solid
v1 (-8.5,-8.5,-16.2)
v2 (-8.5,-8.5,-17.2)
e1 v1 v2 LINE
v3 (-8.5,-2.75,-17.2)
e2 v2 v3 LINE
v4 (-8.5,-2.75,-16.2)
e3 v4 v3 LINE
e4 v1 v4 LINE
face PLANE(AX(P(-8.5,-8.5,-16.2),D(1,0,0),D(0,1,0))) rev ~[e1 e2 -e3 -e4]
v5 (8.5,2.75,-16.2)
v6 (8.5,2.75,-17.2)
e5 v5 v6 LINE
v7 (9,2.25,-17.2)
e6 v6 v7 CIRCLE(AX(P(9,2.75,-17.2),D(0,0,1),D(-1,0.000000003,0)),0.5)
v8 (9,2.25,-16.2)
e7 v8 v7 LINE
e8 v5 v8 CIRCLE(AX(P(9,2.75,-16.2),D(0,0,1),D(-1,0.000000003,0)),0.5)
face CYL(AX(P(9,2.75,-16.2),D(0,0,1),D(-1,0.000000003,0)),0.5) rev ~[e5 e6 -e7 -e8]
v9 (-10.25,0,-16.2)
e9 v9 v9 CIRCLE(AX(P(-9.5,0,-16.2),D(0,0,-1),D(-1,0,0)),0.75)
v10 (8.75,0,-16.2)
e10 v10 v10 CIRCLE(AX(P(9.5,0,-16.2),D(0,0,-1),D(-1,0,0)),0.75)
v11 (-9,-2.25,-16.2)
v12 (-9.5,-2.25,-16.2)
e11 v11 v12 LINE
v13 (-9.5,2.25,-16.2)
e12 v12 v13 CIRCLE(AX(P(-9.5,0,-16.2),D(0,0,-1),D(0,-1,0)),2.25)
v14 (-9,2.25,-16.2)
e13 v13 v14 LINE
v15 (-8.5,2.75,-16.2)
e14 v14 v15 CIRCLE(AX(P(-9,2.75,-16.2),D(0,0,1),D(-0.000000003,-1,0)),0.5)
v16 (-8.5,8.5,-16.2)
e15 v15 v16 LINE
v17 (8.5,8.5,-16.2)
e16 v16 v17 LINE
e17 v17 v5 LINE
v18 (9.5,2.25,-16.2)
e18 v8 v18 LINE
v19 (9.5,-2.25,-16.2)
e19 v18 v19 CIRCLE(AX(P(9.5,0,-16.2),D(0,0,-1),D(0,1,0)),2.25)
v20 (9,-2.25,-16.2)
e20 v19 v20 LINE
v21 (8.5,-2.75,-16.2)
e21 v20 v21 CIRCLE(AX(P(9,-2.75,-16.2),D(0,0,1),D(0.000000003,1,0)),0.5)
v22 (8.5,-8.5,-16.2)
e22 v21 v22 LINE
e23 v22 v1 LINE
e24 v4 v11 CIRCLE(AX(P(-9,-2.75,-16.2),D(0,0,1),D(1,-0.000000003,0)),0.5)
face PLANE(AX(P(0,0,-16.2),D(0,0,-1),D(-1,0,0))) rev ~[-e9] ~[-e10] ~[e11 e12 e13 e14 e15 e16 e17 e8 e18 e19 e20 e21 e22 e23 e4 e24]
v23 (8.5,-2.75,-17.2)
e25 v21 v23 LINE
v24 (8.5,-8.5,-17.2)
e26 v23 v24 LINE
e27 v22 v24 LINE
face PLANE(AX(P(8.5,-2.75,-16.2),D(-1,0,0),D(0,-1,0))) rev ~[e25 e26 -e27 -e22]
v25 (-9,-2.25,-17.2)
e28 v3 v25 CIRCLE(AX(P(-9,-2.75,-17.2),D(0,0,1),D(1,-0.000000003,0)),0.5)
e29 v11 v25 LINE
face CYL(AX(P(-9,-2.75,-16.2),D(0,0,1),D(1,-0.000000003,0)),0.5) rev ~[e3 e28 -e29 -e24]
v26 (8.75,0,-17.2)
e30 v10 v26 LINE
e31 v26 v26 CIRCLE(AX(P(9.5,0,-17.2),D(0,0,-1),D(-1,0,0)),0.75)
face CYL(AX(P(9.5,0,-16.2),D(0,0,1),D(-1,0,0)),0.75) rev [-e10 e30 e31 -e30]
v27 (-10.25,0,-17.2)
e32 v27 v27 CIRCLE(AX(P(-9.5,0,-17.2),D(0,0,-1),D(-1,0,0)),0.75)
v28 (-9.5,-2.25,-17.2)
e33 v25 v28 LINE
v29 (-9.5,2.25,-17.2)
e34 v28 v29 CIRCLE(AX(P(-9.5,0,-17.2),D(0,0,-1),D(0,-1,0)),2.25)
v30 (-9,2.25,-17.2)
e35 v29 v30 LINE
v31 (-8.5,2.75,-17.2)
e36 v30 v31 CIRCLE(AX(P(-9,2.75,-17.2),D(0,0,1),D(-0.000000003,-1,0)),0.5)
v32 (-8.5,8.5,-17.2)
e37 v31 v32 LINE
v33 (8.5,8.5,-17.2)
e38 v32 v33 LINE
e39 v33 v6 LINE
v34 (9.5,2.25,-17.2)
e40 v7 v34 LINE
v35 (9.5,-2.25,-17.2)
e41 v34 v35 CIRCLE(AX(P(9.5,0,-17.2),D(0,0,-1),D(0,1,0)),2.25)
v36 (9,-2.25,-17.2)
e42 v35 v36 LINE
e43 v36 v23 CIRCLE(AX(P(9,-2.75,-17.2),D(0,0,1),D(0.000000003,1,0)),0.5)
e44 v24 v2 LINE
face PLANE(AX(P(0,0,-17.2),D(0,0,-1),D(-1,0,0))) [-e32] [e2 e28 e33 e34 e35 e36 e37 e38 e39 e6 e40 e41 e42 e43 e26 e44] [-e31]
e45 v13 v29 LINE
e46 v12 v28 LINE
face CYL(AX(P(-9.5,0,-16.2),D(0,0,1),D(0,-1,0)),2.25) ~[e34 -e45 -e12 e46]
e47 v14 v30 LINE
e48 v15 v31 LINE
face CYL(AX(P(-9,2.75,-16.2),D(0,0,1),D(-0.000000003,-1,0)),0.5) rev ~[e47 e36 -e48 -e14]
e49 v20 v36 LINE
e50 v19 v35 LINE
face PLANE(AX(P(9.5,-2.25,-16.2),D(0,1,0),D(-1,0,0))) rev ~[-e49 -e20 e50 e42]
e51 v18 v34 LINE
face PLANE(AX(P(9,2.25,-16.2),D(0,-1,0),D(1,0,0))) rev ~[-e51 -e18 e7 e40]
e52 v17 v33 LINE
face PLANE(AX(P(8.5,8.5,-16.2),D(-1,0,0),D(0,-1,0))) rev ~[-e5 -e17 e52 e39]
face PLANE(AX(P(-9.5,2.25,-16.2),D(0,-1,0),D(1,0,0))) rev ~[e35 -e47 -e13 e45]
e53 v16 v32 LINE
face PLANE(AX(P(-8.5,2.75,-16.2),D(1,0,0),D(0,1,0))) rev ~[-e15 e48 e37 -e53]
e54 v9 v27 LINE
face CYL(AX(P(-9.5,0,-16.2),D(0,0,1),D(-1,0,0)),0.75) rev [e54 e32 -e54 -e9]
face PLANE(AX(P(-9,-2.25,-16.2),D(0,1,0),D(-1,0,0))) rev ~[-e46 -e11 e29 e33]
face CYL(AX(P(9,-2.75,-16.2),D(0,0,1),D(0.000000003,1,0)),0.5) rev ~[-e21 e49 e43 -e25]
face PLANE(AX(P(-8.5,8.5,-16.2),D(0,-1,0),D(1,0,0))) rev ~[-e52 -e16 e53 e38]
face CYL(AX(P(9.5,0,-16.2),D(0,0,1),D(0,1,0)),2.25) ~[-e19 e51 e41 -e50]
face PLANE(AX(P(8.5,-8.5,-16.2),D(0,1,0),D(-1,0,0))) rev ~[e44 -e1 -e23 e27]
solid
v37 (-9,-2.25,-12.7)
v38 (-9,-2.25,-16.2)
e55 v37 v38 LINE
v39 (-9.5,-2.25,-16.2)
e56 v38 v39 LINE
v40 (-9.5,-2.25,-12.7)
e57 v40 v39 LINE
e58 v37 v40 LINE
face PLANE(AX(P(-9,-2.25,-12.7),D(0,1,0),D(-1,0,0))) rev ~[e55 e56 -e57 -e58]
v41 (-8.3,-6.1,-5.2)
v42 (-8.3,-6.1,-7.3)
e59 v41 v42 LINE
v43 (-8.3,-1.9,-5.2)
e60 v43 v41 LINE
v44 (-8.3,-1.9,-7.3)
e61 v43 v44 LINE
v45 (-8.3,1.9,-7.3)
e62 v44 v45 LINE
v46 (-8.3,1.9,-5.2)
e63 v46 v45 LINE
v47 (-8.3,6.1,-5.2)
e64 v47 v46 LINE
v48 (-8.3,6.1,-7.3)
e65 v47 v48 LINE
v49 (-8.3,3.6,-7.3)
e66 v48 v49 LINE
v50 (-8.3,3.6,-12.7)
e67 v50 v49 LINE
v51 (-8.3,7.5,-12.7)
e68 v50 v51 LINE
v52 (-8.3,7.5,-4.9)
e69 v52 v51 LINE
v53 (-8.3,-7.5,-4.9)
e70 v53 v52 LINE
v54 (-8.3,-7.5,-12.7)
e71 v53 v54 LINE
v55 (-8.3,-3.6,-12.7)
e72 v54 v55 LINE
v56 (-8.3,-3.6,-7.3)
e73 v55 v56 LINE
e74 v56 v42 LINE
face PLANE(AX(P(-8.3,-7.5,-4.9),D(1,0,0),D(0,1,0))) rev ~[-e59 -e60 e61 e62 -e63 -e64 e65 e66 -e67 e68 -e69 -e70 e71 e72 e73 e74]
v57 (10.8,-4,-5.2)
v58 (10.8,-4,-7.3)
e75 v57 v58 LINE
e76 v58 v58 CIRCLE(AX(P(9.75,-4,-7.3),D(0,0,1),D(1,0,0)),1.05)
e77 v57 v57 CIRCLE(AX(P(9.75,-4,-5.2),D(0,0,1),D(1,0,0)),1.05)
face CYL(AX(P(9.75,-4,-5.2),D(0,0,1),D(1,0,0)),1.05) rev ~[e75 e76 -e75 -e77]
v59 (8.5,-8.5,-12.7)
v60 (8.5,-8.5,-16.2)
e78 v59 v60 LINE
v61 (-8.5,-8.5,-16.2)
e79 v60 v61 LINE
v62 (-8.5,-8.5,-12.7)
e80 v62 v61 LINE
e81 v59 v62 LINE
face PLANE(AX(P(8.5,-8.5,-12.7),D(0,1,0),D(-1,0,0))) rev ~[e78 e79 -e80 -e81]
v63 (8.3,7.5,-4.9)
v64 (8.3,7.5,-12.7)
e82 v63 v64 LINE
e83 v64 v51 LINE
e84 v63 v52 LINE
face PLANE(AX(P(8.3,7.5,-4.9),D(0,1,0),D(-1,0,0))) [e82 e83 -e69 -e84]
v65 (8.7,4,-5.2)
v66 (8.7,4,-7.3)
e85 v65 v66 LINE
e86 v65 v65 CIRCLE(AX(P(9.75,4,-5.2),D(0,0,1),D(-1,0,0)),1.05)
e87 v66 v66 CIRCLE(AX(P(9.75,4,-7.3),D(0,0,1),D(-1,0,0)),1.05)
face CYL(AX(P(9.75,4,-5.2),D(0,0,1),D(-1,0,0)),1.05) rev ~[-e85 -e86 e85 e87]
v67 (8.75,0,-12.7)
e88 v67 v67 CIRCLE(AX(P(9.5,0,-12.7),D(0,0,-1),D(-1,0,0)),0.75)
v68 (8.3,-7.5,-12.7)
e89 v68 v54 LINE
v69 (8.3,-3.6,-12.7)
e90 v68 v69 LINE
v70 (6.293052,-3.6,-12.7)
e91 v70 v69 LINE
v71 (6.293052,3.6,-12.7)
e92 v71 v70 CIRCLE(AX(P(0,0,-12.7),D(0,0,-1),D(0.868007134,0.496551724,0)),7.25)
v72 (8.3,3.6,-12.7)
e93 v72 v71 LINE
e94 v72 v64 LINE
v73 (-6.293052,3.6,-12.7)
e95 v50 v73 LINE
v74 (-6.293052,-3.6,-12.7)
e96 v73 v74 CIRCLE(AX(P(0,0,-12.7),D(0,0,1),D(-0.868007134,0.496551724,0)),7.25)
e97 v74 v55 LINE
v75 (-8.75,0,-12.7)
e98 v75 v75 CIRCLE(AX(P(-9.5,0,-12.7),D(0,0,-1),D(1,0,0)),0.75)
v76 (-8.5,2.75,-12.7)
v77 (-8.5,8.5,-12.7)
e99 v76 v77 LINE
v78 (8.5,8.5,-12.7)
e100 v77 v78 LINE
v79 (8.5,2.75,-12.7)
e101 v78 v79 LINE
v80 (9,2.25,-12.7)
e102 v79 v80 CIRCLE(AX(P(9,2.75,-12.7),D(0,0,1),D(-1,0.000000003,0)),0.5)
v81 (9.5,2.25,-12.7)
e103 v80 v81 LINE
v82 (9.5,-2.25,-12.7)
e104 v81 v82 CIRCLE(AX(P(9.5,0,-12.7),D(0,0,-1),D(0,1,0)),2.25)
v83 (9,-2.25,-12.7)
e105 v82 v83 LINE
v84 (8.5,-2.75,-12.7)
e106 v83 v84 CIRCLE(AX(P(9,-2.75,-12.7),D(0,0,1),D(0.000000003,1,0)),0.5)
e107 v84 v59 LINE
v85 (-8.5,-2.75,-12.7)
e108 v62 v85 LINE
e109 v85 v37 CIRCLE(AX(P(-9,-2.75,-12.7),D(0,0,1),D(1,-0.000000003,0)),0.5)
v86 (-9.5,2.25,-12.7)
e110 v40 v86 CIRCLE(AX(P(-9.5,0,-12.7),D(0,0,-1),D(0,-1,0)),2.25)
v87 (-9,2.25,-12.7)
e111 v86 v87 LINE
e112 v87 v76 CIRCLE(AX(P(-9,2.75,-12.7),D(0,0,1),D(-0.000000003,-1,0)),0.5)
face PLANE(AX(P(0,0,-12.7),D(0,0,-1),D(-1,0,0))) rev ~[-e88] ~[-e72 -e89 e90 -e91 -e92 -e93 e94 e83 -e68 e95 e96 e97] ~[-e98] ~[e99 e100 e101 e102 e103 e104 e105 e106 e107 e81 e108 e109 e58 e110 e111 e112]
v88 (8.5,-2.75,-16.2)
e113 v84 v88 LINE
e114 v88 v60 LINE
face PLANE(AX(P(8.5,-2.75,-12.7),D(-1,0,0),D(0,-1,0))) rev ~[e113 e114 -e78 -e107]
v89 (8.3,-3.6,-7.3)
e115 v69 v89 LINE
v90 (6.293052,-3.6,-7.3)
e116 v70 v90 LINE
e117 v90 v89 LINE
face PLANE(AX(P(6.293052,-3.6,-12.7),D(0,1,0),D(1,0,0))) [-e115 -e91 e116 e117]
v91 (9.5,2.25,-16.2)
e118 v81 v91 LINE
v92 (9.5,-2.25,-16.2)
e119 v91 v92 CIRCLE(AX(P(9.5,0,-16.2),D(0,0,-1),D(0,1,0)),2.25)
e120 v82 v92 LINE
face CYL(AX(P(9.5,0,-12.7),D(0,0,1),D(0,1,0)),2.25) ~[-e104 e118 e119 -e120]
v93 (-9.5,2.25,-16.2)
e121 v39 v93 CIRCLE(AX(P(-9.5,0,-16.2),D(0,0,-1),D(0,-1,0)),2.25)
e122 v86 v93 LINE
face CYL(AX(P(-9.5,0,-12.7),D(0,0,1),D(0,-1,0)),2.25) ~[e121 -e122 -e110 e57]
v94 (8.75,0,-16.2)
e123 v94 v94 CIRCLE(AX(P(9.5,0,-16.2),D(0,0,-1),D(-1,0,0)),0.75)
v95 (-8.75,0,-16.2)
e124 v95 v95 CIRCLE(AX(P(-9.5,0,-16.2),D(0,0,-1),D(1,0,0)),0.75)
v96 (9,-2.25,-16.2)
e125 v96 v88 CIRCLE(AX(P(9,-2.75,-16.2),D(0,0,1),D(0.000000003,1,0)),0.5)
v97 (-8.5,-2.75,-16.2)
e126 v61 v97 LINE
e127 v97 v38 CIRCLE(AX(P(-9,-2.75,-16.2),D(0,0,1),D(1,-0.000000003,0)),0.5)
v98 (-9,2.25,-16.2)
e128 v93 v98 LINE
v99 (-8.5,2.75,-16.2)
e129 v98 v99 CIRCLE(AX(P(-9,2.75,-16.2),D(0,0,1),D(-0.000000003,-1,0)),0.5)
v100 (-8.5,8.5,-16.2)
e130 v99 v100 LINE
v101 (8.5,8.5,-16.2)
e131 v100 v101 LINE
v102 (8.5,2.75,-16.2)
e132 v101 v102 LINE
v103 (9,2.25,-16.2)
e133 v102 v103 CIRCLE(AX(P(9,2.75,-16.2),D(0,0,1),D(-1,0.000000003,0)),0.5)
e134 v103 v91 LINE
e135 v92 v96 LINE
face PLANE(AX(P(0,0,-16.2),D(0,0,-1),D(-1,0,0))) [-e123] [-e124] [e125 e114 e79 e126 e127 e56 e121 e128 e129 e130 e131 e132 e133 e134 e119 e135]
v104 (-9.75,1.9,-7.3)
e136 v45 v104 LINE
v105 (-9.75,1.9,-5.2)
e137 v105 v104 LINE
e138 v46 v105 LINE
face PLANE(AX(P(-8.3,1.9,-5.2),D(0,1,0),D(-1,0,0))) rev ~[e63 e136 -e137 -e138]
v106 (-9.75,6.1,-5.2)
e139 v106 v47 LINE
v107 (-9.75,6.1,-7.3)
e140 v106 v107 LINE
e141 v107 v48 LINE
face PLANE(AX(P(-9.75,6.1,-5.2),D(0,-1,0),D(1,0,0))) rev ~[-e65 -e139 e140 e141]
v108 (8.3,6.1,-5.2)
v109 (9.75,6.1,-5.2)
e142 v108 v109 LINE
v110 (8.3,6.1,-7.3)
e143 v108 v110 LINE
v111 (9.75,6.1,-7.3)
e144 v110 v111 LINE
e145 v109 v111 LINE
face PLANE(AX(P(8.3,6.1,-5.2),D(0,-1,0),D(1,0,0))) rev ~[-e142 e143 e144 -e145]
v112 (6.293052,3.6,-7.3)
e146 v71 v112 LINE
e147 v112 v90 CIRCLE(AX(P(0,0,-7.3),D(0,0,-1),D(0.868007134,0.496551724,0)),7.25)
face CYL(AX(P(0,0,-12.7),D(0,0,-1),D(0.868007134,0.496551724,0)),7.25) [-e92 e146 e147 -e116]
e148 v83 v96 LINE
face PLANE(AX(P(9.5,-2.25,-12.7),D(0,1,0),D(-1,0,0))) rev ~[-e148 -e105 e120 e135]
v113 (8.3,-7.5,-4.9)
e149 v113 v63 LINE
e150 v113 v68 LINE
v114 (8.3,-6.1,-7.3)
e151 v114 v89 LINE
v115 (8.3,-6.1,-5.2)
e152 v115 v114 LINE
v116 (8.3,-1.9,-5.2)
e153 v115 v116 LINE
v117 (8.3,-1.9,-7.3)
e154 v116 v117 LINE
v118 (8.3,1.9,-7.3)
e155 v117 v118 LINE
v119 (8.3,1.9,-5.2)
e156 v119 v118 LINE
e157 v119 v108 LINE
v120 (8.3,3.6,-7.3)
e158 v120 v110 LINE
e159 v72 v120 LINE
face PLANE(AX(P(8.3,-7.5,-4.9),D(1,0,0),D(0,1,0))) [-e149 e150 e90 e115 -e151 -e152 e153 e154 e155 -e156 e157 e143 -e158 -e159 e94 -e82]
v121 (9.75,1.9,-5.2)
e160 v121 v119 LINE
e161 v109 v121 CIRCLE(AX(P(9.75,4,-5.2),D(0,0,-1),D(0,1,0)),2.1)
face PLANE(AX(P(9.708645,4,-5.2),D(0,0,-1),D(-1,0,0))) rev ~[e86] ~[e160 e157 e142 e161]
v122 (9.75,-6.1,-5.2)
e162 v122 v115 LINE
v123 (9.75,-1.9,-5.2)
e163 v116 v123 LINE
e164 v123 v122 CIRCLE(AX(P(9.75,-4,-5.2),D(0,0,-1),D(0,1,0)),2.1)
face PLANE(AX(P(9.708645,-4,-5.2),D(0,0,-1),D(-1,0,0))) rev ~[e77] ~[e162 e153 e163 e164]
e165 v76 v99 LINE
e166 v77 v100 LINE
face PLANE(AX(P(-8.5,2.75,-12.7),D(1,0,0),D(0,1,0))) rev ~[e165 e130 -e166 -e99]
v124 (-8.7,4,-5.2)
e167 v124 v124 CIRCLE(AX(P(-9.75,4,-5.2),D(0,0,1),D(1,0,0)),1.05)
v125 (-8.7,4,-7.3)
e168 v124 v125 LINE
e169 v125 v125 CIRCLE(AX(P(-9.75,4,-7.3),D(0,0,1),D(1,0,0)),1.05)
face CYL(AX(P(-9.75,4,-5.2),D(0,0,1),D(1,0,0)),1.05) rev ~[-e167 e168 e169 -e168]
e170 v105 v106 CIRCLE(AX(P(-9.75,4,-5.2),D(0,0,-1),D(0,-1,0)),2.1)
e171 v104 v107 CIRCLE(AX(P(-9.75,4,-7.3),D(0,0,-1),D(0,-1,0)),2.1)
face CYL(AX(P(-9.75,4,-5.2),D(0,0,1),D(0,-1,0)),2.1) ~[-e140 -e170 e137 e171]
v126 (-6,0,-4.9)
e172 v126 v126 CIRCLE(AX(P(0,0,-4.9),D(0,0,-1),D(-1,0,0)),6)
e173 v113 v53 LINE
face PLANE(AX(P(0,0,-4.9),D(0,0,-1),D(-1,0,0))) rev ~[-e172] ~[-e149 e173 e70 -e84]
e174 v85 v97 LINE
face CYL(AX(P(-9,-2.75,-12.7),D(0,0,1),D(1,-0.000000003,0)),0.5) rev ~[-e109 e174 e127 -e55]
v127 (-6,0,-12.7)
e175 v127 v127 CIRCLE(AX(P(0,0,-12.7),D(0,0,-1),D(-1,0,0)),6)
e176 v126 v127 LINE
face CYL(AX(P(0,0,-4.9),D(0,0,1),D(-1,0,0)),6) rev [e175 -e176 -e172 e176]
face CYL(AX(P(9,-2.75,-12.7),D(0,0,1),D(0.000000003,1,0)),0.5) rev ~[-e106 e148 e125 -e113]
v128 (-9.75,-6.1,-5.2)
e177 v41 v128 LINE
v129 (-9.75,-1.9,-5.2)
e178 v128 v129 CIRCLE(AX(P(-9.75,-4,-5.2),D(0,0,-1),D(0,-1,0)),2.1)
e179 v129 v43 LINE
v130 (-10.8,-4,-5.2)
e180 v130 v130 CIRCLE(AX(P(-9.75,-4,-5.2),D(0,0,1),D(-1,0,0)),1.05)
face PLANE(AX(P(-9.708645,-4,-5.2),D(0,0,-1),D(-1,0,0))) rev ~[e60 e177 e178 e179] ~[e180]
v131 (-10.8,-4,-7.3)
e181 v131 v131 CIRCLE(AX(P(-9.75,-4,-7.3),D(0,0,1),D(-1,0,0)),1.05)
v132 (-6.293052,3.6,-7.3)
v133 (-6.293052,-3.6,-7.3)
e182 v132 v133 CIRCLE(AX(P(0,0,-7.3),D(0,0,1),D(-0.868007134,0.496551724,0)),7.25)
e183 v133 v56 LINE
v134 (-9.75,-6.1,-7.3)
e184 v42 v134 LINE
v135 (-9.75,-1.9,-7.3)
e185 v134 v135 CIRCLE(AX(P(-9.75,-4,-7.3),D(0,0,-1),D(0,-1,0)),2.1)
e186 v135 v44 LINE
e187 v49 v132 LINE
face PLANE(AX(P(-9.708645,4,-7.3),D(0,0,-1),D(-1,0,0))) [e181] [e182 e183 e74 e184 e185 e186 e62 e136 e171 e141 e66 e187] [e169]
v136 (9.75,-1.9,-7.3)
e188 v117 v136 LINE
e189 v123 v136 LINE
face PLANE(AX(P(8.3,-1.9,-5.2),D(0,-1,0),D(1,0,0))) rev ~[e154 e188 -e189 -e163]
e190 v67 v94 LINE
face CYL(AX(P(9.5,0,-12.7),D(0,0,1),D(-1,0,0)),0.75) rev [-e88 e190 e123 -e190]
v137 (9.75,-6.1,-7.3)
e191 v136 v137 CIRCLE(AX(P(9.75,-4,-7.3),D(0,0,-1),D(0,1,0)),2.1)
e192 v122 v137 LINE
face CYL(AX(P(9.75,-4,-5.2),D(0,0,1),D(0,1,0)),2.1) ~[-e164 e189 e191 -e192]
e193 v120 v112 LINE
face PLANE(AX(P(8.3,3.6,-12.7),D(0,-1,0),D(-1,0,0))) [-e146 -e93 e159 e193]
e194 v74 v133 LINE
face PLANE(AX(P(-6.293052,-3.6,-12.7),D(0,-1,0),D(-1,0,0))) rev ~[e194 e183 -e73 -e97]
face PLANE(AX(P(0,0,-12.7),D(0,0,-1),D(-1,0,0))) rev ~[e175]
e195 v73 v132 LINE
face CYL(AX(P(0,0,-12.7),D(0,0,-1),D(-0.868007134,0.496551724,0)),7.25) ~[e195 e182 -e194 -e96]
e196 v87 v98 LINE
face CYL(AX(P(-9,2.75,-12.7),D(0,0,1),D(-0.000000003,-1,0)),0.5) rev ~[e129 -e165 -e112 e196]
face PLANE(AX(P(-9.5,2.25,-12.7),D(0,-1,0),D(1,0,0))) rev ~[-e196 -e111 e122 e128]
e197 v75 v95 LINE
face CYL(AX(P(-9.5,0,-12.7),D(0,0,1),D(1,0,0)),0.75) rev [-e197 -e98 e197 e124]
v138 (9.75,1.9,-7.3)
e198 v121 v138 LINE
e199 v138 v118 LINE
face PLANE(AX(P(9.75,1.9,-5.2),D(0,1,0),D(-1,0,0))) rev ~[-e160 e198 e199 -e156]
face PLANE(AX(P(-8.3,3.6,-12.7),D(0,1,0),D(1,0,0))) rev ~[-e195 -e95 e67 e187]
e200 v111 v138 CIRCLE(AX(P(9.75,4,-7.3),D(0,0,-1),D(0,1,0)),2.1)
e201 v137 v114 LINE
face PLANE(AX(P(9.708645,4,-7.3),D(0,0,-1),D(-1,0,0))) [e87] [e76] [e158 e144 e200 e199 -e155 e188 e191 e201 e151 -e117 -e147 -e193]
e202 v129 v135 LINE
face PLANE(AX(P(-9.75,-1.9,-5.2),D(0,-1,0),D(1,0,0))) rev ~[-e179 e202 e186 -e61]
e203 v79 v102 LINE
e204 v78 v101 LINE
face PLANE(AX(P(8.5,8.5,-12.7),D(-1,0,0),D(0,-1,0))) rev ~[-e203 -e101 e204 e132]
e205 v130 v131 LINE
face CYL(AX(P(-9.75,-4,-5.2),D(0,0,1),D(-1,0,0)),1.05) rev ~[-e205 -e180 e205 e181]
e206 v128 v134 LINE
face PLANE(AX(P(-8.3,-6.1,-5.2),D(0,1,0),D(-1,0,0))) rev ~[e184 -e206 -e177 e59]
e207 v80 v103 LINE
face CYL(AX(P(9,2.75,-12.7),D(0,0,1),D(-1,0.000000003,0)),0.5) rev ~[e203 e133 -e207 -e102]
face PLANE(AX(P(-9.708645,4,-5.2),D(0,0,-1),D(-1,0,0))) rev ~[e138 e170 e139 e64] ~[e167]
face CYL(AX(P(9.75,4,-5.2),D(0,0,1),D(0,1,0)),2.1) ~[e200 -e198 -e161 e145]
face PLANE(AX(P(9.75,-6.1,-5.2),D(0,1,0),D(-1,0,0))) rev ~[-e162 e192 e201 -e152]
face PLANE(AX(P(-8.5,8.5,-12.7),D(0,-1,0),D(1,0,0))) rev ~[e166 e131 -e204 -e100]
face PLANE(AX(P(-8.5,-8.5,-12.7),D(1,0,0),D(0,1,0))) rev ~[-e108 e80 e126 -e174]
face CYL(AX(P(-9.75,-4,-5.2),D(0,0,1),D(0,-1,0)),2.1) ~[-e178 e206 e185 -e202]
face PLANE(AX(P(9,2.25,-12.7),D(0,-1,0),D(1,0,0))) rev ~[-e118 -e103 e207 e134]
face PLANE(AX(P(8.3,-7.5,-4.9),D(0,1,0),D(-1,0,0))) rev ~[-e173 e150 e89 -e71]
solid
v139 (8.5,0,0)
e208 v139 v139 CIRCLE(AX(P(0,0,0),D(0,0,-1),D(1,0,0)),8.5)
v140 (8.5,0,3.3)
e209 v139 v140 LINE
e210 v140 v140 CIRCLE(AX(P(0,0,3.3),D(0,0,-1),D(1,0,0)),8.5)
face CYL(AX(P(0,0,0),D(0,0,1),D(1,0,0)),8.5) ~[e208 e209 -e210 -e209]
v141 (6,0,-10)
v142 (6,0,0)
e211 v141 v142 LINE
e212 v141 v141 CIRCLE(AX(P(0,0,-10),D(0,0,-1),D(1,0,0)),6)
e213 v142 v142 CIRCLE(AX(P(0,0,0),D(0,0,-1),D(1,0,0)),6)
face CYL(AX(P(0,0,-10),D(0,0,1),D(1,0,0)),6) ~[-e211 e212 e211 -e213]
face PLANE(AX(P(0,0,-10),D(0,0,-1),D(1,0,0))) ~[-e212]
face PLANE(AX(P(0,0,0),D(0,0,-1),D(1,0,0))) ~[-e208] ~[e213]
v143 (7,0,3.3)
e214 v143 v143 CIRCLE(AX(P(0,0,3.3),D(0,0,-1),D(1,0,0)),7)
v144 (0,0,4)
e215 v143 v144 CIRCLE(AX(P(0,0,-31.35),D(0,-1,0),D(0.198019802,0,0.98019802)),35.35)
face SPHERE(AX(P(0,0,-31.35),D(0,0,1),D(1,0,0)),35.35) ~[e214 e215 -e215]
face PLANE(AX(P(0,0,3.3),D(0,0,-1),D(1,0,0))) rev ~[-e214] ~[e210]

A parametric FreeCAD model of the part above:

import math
import FreeCAD as App
import Part
import Sketcher

doc = App.newDocument("Part")
body = doc.addObject("PartDesign::Body", "Body")

# Sketch on YZ plane
sketch1 = doc.addObject("Sketcher::SketchObject", "Sketch")
body.addObject(sketch1)
sketch1.AttachmentSupport = (doc.YZ_Plane, [""])
sketch1.MapMode = "FlatFace"
sketch1.addGeometry(Part.LineSegment(App.Vector(6, -10, 0), App.Vector(6, 0, 0)), False)
sketch1.addGeometry(Part.LineSegment(App.Vector(6, 0, 0), App.Vector(8.5, 0, 0)), False)
sketch1.addGeometry(Part.LineSegment(App.Vector(8.5, 0, 0), App.Vector(8.5, 3.3, 0)), False)
sketch1.addGeometry(Part.LineSegment(App.Vector(8.5, 3.3, 0), App.Vector(7, 3.3, 0)), False)
sketch1.addGeometry(Part.ArcOfCircle(Part.Circle(App.Vector(0, -31.3, 0), App.Vector(0, 0, 1), 35.3), math.radians(78.58), math.radians(90)), False)
sketch1.addGeometry(Part.LineSegment(App.Vector(0, 4, 0), App.Vector(0, -10, 0)), False)
sketch1.addGeometry(Part.LineSegment(App.Vector(0, -10, 0), App.Vector(6, -10, 0)), False)
sketch1.addConstraint(Sketcher.Constraint("Coincident", 0, 2, 1, 1))
sketch1.addConstraint(Sketcher.Constraint("Coincident", 1, 2, 2, 1))
sketch1.addConstraint(Sketcher.Constraint("Coincident", 2, 2, 3, 1))
sketch1.addConstraint(Sketcher.Constraint("Coincident", 3, 2, 4, 1))
sketch1.addConstraint(Sketcher.Constraint("Coincident", 4, 2, 5, 1))
sketch1.addConstraint(Sketcher.Constraint("Coincident", 5, 2, 6, 1))
sketch1.addConstraint(Sketcher.Constraint("Coincident", 6, 2, 0, 1))
sketch1.addConstraint(Sketcher.Constraint("Vertical", 0))
sketch1.addConstraint(Sketcher.Constraint("Horizontal", 1))
sketch1.addConstraint(Sketcher.Constraint("Vertical", 2))
sketch1.addConstraint(Sketcher.Constraint("Horizontal", 3))
sketch1.addConstraint(Sketcher.Constraint("Vertical", 5))
sketch1.addConstraint(Sketcher.Constraint("Horizontal", 6))
sketch1.addConstraint(Sketcher.Constraint("PointOnObject", 4, 3, -2))
sketch1.addConstraint(Sketcher.Constraint("PointOnObject", 0, 2, -1))
sketch1.addConstraint(Sketcher.Constraint("PointOnObject", 4, 2, -2))
sketch1.addConstraint(Sketcher.Constraint("DistanceX", 6, 1, 6, 2, 6.0))
sketch1.addConstraint(Sketcher.Constraint("DistanceY", 0, 1, 0, 2, 10.0))
sketch1.addConstraint(Sketcher.Constraint("DistanceY", 5, 2, 5, 1, 14.0))
sketch1.addConstraint(Sketcher.Constraint("Radius", 4, 35.35))
sketch1.addConstraint(Sketcher.Constraint("DistanceX", 1, 1, 1, 2, 2.5))
sketch1.addConstraint(Sketcher.Constraint("DistanceX", 3, 2, 3, 1, 1.5))
revolution = doc.addObject("PartDesign::Revolution", "Revolution")
body.addObject(revolution)
revolution.Profile = sketch1
revolution.ReferenceAxis = (sketch1, ["V_Axis"])
revolution.Angle = 360
body2 = doc.addObject("PartDesign::Body", "Body001")

# Sketch on XY plane
sketch2 = doc.addObject("Sketcher::SketchObject", "Sketch001")
body2.addObject(sketch2)
sketch2.AttachmentSupport = (doc.getObject("XY_Plane001"), [""])
sketch2.MapMode = "FlatFace"
sketch2.AttachmentOffset = App.Placement(App.Vector(0, 0, -4.9), App.Rotation())
sketch2.addGeometry(Part.LineSegment(App.Vector(8, 8, 0), App.Vector(8, -8, 0)), False)
sketch2.addGeometry(Part.LineSegment(App.Vector(8, -8, 0), App.Vector(-8, -8, 0)), False)
sketch2.addGeometry(Part.LineSegment(App.Vector(-8, -8, 0), App.Vector(-8, 8, 0)), False)
sketch2.addGeometry(Part.LineSegment(App.Vector(-8, 8, 0), App.Vector(8, 8, 0)), False)
sketch2.addGeometry(Part.Circle(App.Vector(0, 0, 0), App.Vector(0, 0, 1), 6), False)
sketch2.addConstraint(Sketcher.Constraint("Coincident", 0, 2, 1, 1))
sketch2.addConstraint(Sketcher.Constraint("Coincident", 1, 2, 2, 1))
sketch2.addConstraint(Sketcher.Constraint("Coincident", 2, 2, 3, 1))
sketch2.addConstraint(Sketcher.Constraint("Coincident", 3, 2, 0, 1))
sketch2.addConstraint(Sketcher.Constraint("Vertical", 0))
sketch2.addConstraint(Sketcher.Constraint("Horizontal", 1))
sketch2.addConstraint(Sketcher.Constraint("Vertical", 2))
sketch2.addConstraint(Sketcher.Constraint("Horizontal", 3))
sketch2.addConstraint(Sketcher.Constraint("Coincident", 4, 3, -1, 1))
sketch2.addConstraint(Sketcher.Constraint("Symmetric", 0, 2, 2, 2, -1, 1))
sketch2.addConstraint(Sketcher.Constraint("Diameter", 4, 12.0))
sketch2.addConstraint(Sketcher.Constraint("DistanceY", 0, 2, 0, 1, 15.0))
sketch2.addConstraint(Sketcher.Constraint("DistanceX", 1, 2, 1, 1, 16.6))
pad1 = doc.addObject("PartDesign::Pad", "Pad")
body2.addObject(pad1)
pad1.Profile = sketch2
pad1.Length = 7.8
pad1.Reversed = True

# Sketch on XY plane
sketch3 = doc.addObject("Sketcher::SketchObject", "Sketch002")
body2.addObject(sketch3)
sketch3.AttachmentSupport = (doc.getObject("XY_Plane001"), [""])
sketch3.MapMode = "FlatFace"
sketch3.AttachmentOffset = App.Placement(App.Vector(0, 0, -5.2), App.Rotation())
sketch3.addGeometry(Part.LineSegment(App.Vector(-8.3, 6.1, 0), App.Vector(-9.8, 6.1, 0)), False)
sketch3.addGeometry(Part.ArcOfCircle(Part.Circle(App.Vector(-9.8, 4, 0), App.Vector(0, 0, 1), 2.1), math.radians(90), math.radians(270)), False)
sketch3.addGeometry(Part.LineSegment(App.Vector(-9.8, 1.9, 0), App.Vector(-8.3, 1.9, 0)), False)
sketch3.addGeometry(Part.LineSegment(App.Vector(-8.3, 1.9, 0), App.Vector(-8.3, 6.1, 0)), False)
sketch3.addGeometry(Part.Circle(App.Vector(-9.8, 4, 0), App.Vector(0, 0, 1), 1.1), False)
sketch3.addGeometry(Part.LineSegment(App.Vector(8.3, 1.9, 0), App.Vector(9.8, 1.9, 0)), False)
sketch3.addGeometry(Part.ArcOfCircle(Part.Circle(App.Vector(9.8, 4, 0), App.Vector(0, 0, 1), 2.1), math.radians(-90), math.radians(90)), False)
sketch3.addGeometry(Part.LineSegment(App.Vector(9.8, 6.1, 0), App.Vector(8.3, 6.1, 0)), False)
sketch3.addGeometry(Part.LineSegment(App.Vector(8.3, 6.1, 0), App.Vector(8.3, 1.9, 0)), False)
sketch3.addGeometry(Part.Circle(App.Vector(9.8, 4, 0), App.Vector(0, 0, 1), 1.1), False)
sketch3.addGeometry(Part.LineSegment(App.Vector(8.3, -6.1, 0), App.Vector(9.8, -6.1, 0)), False)
sketch3.addGeometry(Part.ArcOfCircle(Part.Circle(App.Vector(9.8, -4, 0), App.Vector(0, 0, 1), 2.1), math.radians(-90), math.radians(90)), False)
sketch3.addGeometry(Part.LineSegment(App.Vector(9.8, -1.9, 0), App.Vector(8.3, -1.9, 0)), False)
sketch3.addGeometry(Part.LineSegment(App.Vector(8.3, -1.9, 0), App.Vector(8.3, -6.1, 0)), False)
sketch3.addGeometry(Part.Circle(App.Vector(9.8, -4, 0), App.Vector(0, 0, 1), 1.1), False)
sketch3.addGeometry(Part.LineSegment(App.Vector(-8.3, -1.9, 0), App.Vector(-9.8, -1.9, 0)), False)
sketch3.addGeometry(Part.ArcOfCircle(Part.Circle(App.Vector(-9.8, -4, 0), App.Vector(0, 0, 1), 2.1), math.radians(90), math.radians(270)), False)
sketch3.addGeometry(Part.LineSegment(App.Vector(-9.8, -6.1, 0), App.Vector(-8.3, -6.1, 0)), False)
sketch3.addGeometry(Part.LineSegment(App.Vector(-8.3, -6.1, 0), App.Vector(-8.3, -1.9, 0)), False)
sketch3.addGeometry(Part.Circle(App.Vector(-9.8, -4, 0), App.Vector(0, 0, 1), 1.1), False)
sketch3.addConstraint(Sketcher.Constraint("Tangent", 0, 2, 1, 1))
sketch3.addConstraint(Sketcher.Constraint("Tangent", 1, 2, 2, 1))
sketch3.addConstraint(Sketcher.Constraint("Coincident", 2, 2, 3, 1))
sketch3.addConstraint(Sketcher.Constraint("Coincident", 3, 2, 0, 1))
sketch3.addConstraint(Sketcher.Constraint("Tangent", 5, 2, 6, 1))
sketch3.addConstraint(Sketcher.Constraint("Tangent", 6, 2, 7, 1))
sketch3.addConstraint(Sketcher.Constraint("Coincident", 7, 2, 8, 1))
sketch3.addConstraint(Sketcher.Constraint("Coincident", 8, 2, 5, 1))
sketch3.addConstraint(Sketcher.Constraint("Tangent", 10, 2, 11, 1))
sketch3.addConstraint(Sketcher.Constraint("Tangent", 11, 2, 12, 1))
sketch3.addConstraint(Sketcher.Constraint("Coincident", 12, 2, 13, 1))
sketch3.addConstraint(Sketcher.Constraint("Coincident", 13, 2, 10, 1))
sketch3.addConstraint(Sketcher.Constraint("Tangent", 15, 2, 16, 1))
sketch3.addConstraint(Sketcher.Constraint("Tangent", 16, 2, 17, 1))
sketch3.addConstraint(Sketcher.Constraint("Coincident", 17, 2, 18, 1))
sketch3.addConstraint(Sketcher.Constraint("Coincident", 18, 2, 15, 1))
sketch3.addConstraint(Sketcher.Constraint("Horizontal", 0))
sketch3.addConstraint(Sketcher.Constraint("Horizontal", 2))
sketch3.addConstraint(Sketcher.Constraint("Vertical", 3))
sketch3.addConstraint(Sketcher.Constraint("Horizontal", 5))
sketch3.addConstraint(Sketcher.Constraint("Horizontal", 7))
sketch3.addConstraint(Sketcher.Constraint("Vertical", 8))
sketch3.addConstraint(Sketcher.Constraint("Horizontal", 10))
sketch3.addConstraint(Sketcher.Constraint("Horizontal", 12))
sketch3.addConstraint(Sketcher.Constraint("Vertical", 13))
sketch3.addConstraint(Sketcher.Constraint("Horizontal", 15))
sketch3.addConstraint(Sketcher.Constraint("Horizontal", 17))
sketch3.addConstraint(Sketcher.Constraint("Vertical", 18))
sketch3.addConstraint(Sketcher.Constraint("Coincident", 4, 3, 1, 3))
sketch3.addConstraint(Sketcher.Constraint("Coincident", 9, 3, 6, 3))
sketch3.addConstraint(Sketcher.Constraint("Coincident", 14, 3, 11, 3))
sketch3.addConstraint(Sketcher.Constraint("Coincident", 19, 3, 16, 3))
sketch3.addConstraint(Sketcher.Constraint("Equal", 1, 6))
sketch3.addConstraint(Sketcher.Constraint("Equal", 4, 9))
sketch3.addConstraint(Sketcher.Constraint("Equal", 6, 11))
sketch3.addConstraint(Sketcher.Constraint("Equal", 9, 14))
sketch3.addConstraint(Sketcher.Constraint("Equal", 11, 16))
sketch3.addConstraint(Sketcher.Constraint("Equal", 14, 19))
sketch3.addConstraint(Sketcher.Constraint("Symmetric", 1, 3, 11, 3, -1, 1))
sketch3.addConstraint(Sketcher.Constraint("Symmetric", 6, 3, 16, 3, -1, 1))
sketch3.addConstraint(Sketcher.Constraint("Symmetric", 1, 3, 6, 3, -2))
sketch3.addConstraint(Sketcher.Constraint("Vertical", 8, 2, 12, 2))
sketch3.addConstraint(Sketcher.Constraint("Vertical", 3, 2, 17, 2))
sketch3.addConstraint(Sketcher.Constraint("Equal", 2, 5))
sketch3.addConstraint(Sketcher.Constraint("Diameter", 4, 2.1))
sketch3.addConstraint(Sketcher.Constraint("Radius", 1, 2.1))
sketch3.addConstraint(Sketcher.Constraint("DistanceY", -1, 1, 1, 3, 4.0))
sketch3.addConstraint(Sketcher.Constraint("DistanceX", 0, 2, 0, 1, 1.45))
sketch3.addConstraint(Sketcher.Constraint("DistanceX", 2, 2, -1, 1, 8.3))
pad2 = doc.addObject("PartDesign::Pad", "Pad001")
body2.addObject(pad2)
pad2.Profile = sketch3
pad2.Length = 2.1
pad2.Reversed = True

# Sketch on XY plane
sketch4 = doc.addObject("Sketcher::SketchObject", "Sketch003")
body2.addObject(sketch4)
sketch4.AttachmentSupport = (doc.getObject("XY_Plane001"), [""])
sketch4.MapMode = "FlatFace"
sketch4.AttachmentOffset = App.Placement(App.Vector(0, 0, -12.7), App.Rotation())
sketch4.addGeometry(Part.LineSegment(App.Vector(8.5, -8.5, 0), App.Vector(-8.5, -8.5, 0)), False)
sketch4.addGeometry(Part.LineSegment(App.Vector(-8.5, -8.5, 0), App.Vector(-8.5, -2.75, 0)), False)
sketch4.addGeometry(Part.ArcOfCircle(Part.Circle(App.Vector(-9, -2.75, 0), App.Vector(0, 0, 1), 0.5), math.radians(0), math.radians(90)), False)
sketch4.addGeometry(Part.LineSegment(App.Vector(-9, -2.25, 0), App.Vector(-9.5, -2.25, 0)), False)
sketch4.addGeometry(Part.ArcOfCircle(Part.Circle(App.Vector(-9.5, 0, 0), App.Vector(0, 0, 1), 2.25), math.radians(90), math.radians(270)), False)
sketch4.addGeometry(Part.LineSegment(App.Vector(-9.5, 2.25, 0), App.Vector(-9, 2.25, 0)), False)
sketch4.addGeometry(Part.ArcOfCircle(Part.Circle(App.Vector(-9, 2.75, 0), App.Vector(0, 0, 1), 0.5), math.radians(-90), math.radians(0)), False)
sketch4.addGeometry(Part.LineSegment(App.Vector(-8.5, 2.75, 0), App.Vector(-8.5, 8.5, 0)), False)
sketch4.addGeometry(Part.LineSegment(App.Vector(-8.5, 8.5, 0), App.Vector(8.5, 8.5, 0)), False)
sketch4.addGeometry(Part.LineSegment(App.Vector(8.5, 8.5, 0), App.Vector(8.5, 2.75, 0)), False)
sketch4.addGeometry(Part.ArcOfCircle(Part.Circle(App.Vector(9, 2.75, 0), App.Vector(0, 0, 1), 0.5), math.radians(180), math.radians(270)), False)
sketch4.addGeometry(Part.LineSegment(App.Vector(9, 2.25, 0), App.Vector(9.5, 2.25, 0)), False)
sketch4.addGeometry(Part.ArcOfCircle(Part.Circle(App.Vector(9.5, 0, 0), App.Vector(0, 0, 1), 2.25), math.radians(-90), math.radians(90)), False)
sketch4.addGeometry(Part.LineSegment(App.Vector(9.5, -2.25, 0), App.Vector(9, -2.25, 0)), False)
sketch4.addGeometry(Part.ArcOfCircle(Part.Circle(App.Vector(9, -2.75, 0), App.Vector(0, 0, 1), 0.5), math.radians(90), math.radians(180)), False)
sketch4.addGeometry(Part.LineSegment(App.Vector(8.5, -2.75, 0), App.Vector(8.5, -8.5, 0)), False)
sketch4.addGeometry(Part.Circle(App.Vector(9.5, 0, 0), App.Vector(0, 0, 1), 0.75), False)
sketch4.addGeometry(Part.Circle(App.Vector(-9.5, 0, 0), App.Vector(0, 0, 1), 0.75), False)
sketch4.addConstraint(Sketcher.Constraint("Coincident", 0, 2, 1, 1))
sketch4.addConstraint(Sketcher.Constraint("Tangent", 1, 2, 2, 1))
sketch4.addConstraint(Sketcher.Constraint("Tangent", 2, 2, 3, 1))
sketch4.addConstraint(Sketcher.Constraint("Tangent", 3, 2, 4, 2))
sketch4.addConstraint(Sketcher.Constraint("Tangent", 4, 1, 5, 1))
sketch4.addConstraint(Sketcher.Constraint("Tangent", 5, 2, 6, 1))
sketch4.addConstraint(Sketcher.Constraint("Tangent", 6, 2, 7, 1))
sketch4.addConstraint(Sketcher.Constraint("Coincident", 7, 2, 8, 1))
sketch4.addConstraint(Sketcher.Constraint("Coincident", 8, 2, 9, 1))
sketch4.addConstraint(Sketcher.Constraint("Tangent", 9, 2, 10, 1))
sketch4.addConstraint(Sketcher.Constraint("Tangent", 10, 2, 11, 1))
sketch4.addConstraint(Sketcher.Constraint("Tangent", 11, 2, 12, 2))
sketch4.addConstraint(Sketcher.Constraint("Tangent", 12, 1, 13, 1))
sketch4.addConstraint(Sketcher.Constraint("Tangent", 13, 2, 14, 1))
sketch4.addConstraint(Sketcher.Constraint("Tangent", 14, 2, 15, 1))
sketch4.addConstraint(Sketcher.Constraint("Coincident", 15, 2, 0, 1))
sketch4.addConstraint(Sketcher.Constraint("Horizontal", 0))
sketch4.addConstraint(Sketcher.Constraint("Vertical", 1))
sketch4.addConstraint(Sketcher.Constraint("Horizontal", 3))
sketch4.addConstraint(Sketcher.Constraint("Horizontal", 5))
sketch4.addConstraint(Sketcher.Constraint("Vertical", 7))
sketch4.addConstraint(Sketcher.Constraint("Horizontal", 8))
sketch4.addConstraint(Sketcher.Constraint("Vertical", 9))
sketch4.addConstraint(Sketcher.Constraint("Horizontal", 11))
sketch4.addConstraint(Sketcher.Constraint("Horizontal", 13))
sketch4.addConstraint(Sketcher.Constraint("Vertical", 15))
sketch4.addConstraint(Sketcher.Constraint("Coincident", 16, 3, 12, 3))
sketch4.addConstraint(Sketcher.Constraint("Coincident", 17, 3, 4, 3))
sketch4.addConstraint(Sketcher.Constraint("Equal", 2, 6))
sketch4.addConstraint(Sketcher.Constraint("Equal", 6, 10))
sketch4.addConstraint(Sketcher.Constraint("Equal", 4, 12))
sketch4.addConstraint(Sketcher.Constraint("Equal", 10, 14))
sketch4.addConstraint(Sketcher.Constraint("Equal", 16, 17))
sketch4.addConstraint(Sketcher.Constraint("Symmetric", 2, 3, 10, 3, -1, 1))
sketch4.addConstraint(Sketcher.Constraint("Symmetric", 7, 2, 15, 2, -1, 1))
sketch4.addConstraint(Sketcher.Constraint("Symmetric", 6, 3, 10, 3, -2))
sketch4.addConstraint(Sketcher.Constraint("Equal", 5, 11))
sketch4.addConstraint(Sketcher.Constraint("Diameter", 16, 1.5))
sketch4.addConstraint(Sketcher.Constraint("Radius", 2, 0.5))
sketch4.addConstraint(Sketcher.Constraint("DistanceX", 0, 2, 0, 1, 17.0))
sketch4.addConstraint(Sketcher.Constraint("Radius", 4, 2.25))
sketch4.addConstraint(Sketcher.Constraint("DistanceX", 3, 2, 3, 1, 0.5))
sketch4.addConstraint(Sketcher.Constraint("DistanceY", 1, 1, 1, 2, 5.75))
pad3 = doc.addObject("PartDesign::Pad", "Pad002")
body2.addObject(pad3)
pad3.Profile = sketch4
pad3.Length = 3.5
pad3.Reversed = True

# Sketch on XY plane
sketch5 = doc.addObject("Sketcher::SketchObject", "Sketch004")
body2.addObject(sketch5)
sketch5.AttachmentSupport = (doc.getObject("XY_Plane001"), [""])
sketch5.MapMode = "FlatFace"
sketch5.AttachmentOffset = App.Placement(App.Vector(0, 0, -12.7), App.Rotation())
sketch5.addGeometry(Part.LineSegment(App.Vector(-8.3, 3.6, 0), App.Vector(-8.3, -3.6, 0)), False)
sketch5.addGeometry(Part.LineSegment(App.Vector(-8.3, -3.6, 0), App.Vector(-6.3, -3.6, 0)), False)
sketch5.addGeometry(Part.ArcOfCircle(Part.Circle(App.Vector(0, 0, 0), App.Vector(0, 0, 1), 7.2), math.radians(150), math.radians(210)), False)
sketch5.addGeometry(Part.LineSegment(App.Vector(-6.3, 3.6, 0), App.Vector(-8.3, 3.6, 0)), False)
sketch5.addGeometry(Part.LineSegment(App.Vector(8.3, 3.6, 0), App.Vector(6.3, 3.6, 0)), False)
sketch5.addGeometry(Part.ArcOfCircle(Part.Circle(App.Vector(0, 0, 0), App.Vector(0, 0, 1), 7.2), math.radians(-30), math.radians(30)), False)
sketch5.addGeometry(Part.LineSegment(App.Vector(6.3, -3.6, 0), App.Vector(8.3, -3.6, 0)), False)
sketch5.addGeometry(Part.LineSegment(App.Vector(8.3, -3.6, 0), App.Vector(8.3, 3.6, 0)), False)
sketch5.addConstraint(Sketcher.Constraint("Coincident", 0, 2, 1, 1))
sketch5.addConstraint(Sketcher.Constraint("Coincident", 1, 2, 2, 2))
sketch5.addConstraint(Sketcher.Constraint("Coincident", 2, 1, 3, 1))
sketch5.addConstraint(Sketcher.Constraint("Coincident", 3, 2, 0, 1))
sketch5.addConstraint(Sketcher.Constraint("Coincident", 4, 2, 5, 2))
sketch5.addConstraint(Sketcher.Constraint("Coincident", 5, 1, 6, 1))
sketch5.addConstraint(Sketcher.Constraint("Coincident", 6, 2, 7, 1))
sketch5.addConstraint(Sketcher.Constraint("Coincident", 7, 2, 4, 1))
sketch5.addConstraint(Sketcher.Constraint("Vertical", 0))
sketch5.addConstraint(Sketcher.Constraint("Horizontal", 1))
sketch5.addConstraint(Sketcher.Constraint("Horizontal", 3))
sketch5.addConstraint(Sketcher.Constraint("Horizontal", 4))
sketch5.addConstraint(Sketcher.Constraint("Horizontal", 6))
sketch5.addConstraint(Sketcher.Constraint("Vertical", 7))
sketch5.addConstraint(Sketcher.Constraint("Coincident", 2, 3, -1, 1))
sketch5.addConstraint(Sketcher.Constraint("Coincident", 5, 3, -1, 1))
sketch5.addConstraint(Sketcher.Constraint("Equal", 2, 5))
sketch5.addConstraint(Sketcher.Constraint("Symmetric", 3, 2, 6, 2, -1, 1))
sketch5.addConstraint(Sketcher.Constraint("Horizontal", 3, 2, 4, 2))
sketch5.addConstraint(Sketcher.Constraint("Horizontal", 1, 2, 5, 1))
sketch5.addConstraint(Sketcher.Constraint("Radius", 2, 7.25))
sketch5.addConstraint(Sketcher.Constraint("DistanceY", 0, 2, 0, 1, 7.2))
sketch5.addConstraint(Sketcher.Constraint("DistanceX", 0, 2, -1, 1, 8.3))
pocket1 = doc.addObject("PartDesign::Pocket", "Pocket")
body2.addObject(pocket1)
pocket1.Profile = sketch5
pocket1.Length = 5.4
pocket1.Reversed = True
body3 = doc.addObject("PartDesign::Body", "Body002")

# Sketch on XY plane
sketch6 = doc.addObject("Sketcher::SketchObject", "Sketch005")
body3.addObject(sketch6)
sketch6.AttachmentSupport = (doc.getObject("XY_Plane002"), [""])
sketch6.MapMode = "FlatFace"
sketch6.AttachmentOffset = App.Placement(App.Vector(0, 0, -16.2), App.Rotation())
sketch6.addGeometry(Part.LineSegment(App.Vector(-8.5, 2.75, 0), App.Vector(-8.5, 8.5, 0)), False)
sketch6.addGeometry(Part.LineSegment(App.Vector(-8.5, 8.5, 0), App.Vector(8.5, 8.5, 0)), False)
sketch6.addGeometry(Part.LineSegment(App.Vector(8.5, 8.5, 0), App.Vector(8.5, 2.75, 0)), False)
sketch6.addGeometry(Part.ArcOfCircle(Part.Circle(App.Vector(9, 2.75, 0), App.Vector(0, 0, 1), 0.5), math.radians(180), math.radians(270)), False)
sketch6.addGeometry(Part.LineSegment(App.Vector(9, 2.25, 0), App.Vector(9.5, 2.25, 0)), False)
sketch6.addGeometry(Part.ArcOfCircle(Part.Circle(App.Vector(9.5, 0, 0), App.Vector(0, 0, 1), 2.25), math.radians(-90), math.radians(90)), False)
sketch6.addGeometry(Part.LineSegment(App.Vector(9.5, -2.25, 0), App.Vector(9, -2.25, 0)), False)
sketch6.addGeometry(Part.ArcOfCircle(Part.Circle(App.Vector(9, -2.75, 0), App.Vector(0, 0, 1), 0.5), math.radians(90), math.radians(180)), False)
sketch6.addGeometry(Part.LineSegment(App.Vector(8.5, -2.75, 0), App.Vector(8.5, -8.5, 0)), False)
sketch6.addGeometry(Part.LineSegment(App.Vector(8.5, -8.5, 0), App.Vector(-8.5, -8.5, 0)), False)
sketch6.addGeometry(Part.LineSegment(App.Vector(-8.5, -8.5, 0), App.Vector(-8.5, -2.75, 0)), False)
sketch6.addGeometry(Part.ArcOfCircle(Part.Circle(App.Vector(-9, -2.75, 0), App.Vector(0, 0, 1), 0.5), math.radians(0), math.radians(90)), False)
sketch6.addGeometry(Part.LineSegment(App.Vector(-9, -2.25, 0), App.Vector(-9.5, -2.25, 0)), False)
sketch6.addGeometry(Part.ArcOfCircle(Part.Circle(App.Vector(-9.5, 0, 0), App.Vector(0, 0, 1), 2.25), math.radians(90), math.radians(270)), False)
sketch6.addGeometry(Part.LineSegment(App.Vector(-9.5, 2.25, 0), App.Vector(-9, 2.25, 0)), False)
sketch6.addGeometry(Part.ArcOfCircle(Part.Circle(App.Vector(-9, 2.75, 0), App.Vector(0, 0, 1), 0.5), math.radians(-90), math.radians(0)), False)
sketch6.addGeometry(Part.Circle(App.Vector(9.5, 0, 0), App.Vector(0, 0, 1), 0.75), False)
sketch6.addGeometry(Part.Circle(App.Vector(-9.5, 0, 0), App.Vector(0, 0, 1), 0.75), False)
sketch6.addConstraint(Sketcher.Constraint("Coincident", 0, 2, 1, 1))
sketch6.addConstraint(Sketcher.Constraint("Coincident", 1, 2, 2, 1))
sketch6.addConstraint(Sketcher.Constraint("Tangent", 2, 2, 3, 1))
sketch6.addConstraint(Sketcher.Constraint("Tangent", 3, 2, 4, 1))
sketch6.addConstraint(Sketcher.Constraint("Tangent", 4, 2, 5, 2))
sketch6.addConstraint(Sketcher.Constraint("Tangent", 5, 1, 6, 1))
sketch6.addConstraint(Sketcher.Constraint("Tangent", 6, 2, 7, 1))
sketch6.addConstraint(Sketcher.Constraint("Tangent", 7, 2, 8, 1))
sketch6.addConstraint(Sketcher.Constraint("Coincident", 8, 2, 9, 1))
sketch6.addConstraint(Sketcher.Constraint("Coincident", 9, 2, 10, 1))
sketch6.addConstraint(Sketcher.Constraint("Tangent", 10, 2, 11, 1))
sketch6.addConstraint(Sketcher.Constraint("Tangent", 11, 2, 12, 1))
sketch6.addConstraint(Sketcher.Constraint("Tangent", 12, 2, 13, 2))
sketch6.addConstraint(Sketcher.Constraint("Tangent", 13, 1, 14, 1))
sketch6.addConstraint(Sketcher.Constraint("Tangent", 14, 2, 15, 1))
sketch6.addConstraint(Sketcher.Constraint("Tangent", 15, 2, 0, 1))
sketch6.addConstraint(Sketcher.Constraint("Vertical", 0))
sketch6.addConstraint(Sketcher.Constraint("Horizontal", 1))
sketch6.addConstraint(Sketcher.Constraint("Vertical", 2))
sketch6.addConstraint(Sketcher.Constraint("Horizontal", 4))
sketch6.addConstraint(Sketcher.Constraint("Horizontal", 6))
sketch6.addConstraint(Sketcher.Constraint("Vertical", 8))
sketch6.addConstraint(Sketcher.Constraint("Horizontal", 9))
sketch6.addConstraint(Sketcher.Constraint("Vertical", 10))
sketch6.addConstraint(Sketcher.Constraint("Horizontal", 12))
sketch6.addConstraint(Sketcher.Constraint("Horizontal", 14))
sketch6.addConstraint(Sketcher.Constraint("Coincident", 16, 3, 5, 3))
sketch6.addConstraint(Sketcher.Constraint("Coincident", 17, 3, 13, 3))
sketch6.addConstraint(Sketcher.Constraint("Equal", 3, 7))
sketch6.addConstraint(Sketcher.Constraint("Equal", 7, 11))
sketch6.addConstraint(Sketcher.Constraint("Equal", 5, 13))
sketch6.addConstraint(Sketcher.Constraint("Equal", 11, 15))
sketch6.addConstraint(Sketcher.Constraint("Equal", 16, 17))
sketch6.addConstraint(Sketcher.Constraint("Symmetric", 3, 3, 11, 3, -1, 1))
sketch6.addConstraint(Sketcher.Constraint("Symmetric", 0, 2, 8, 2, -1, 1))
sketch6.addConstraint(Sketcher.Constraint("Symmetric", 7, 3, 11, 3, -2))
sketch6.addConstraint(Sketcher.Constraint("Equal", 6, 12))
sketch6.addConstraint(Sketcher.Constraint("Diameter", 16, 1.5))
sketch6.addConstraint(Sketcher.Constraint("Radius", 3, 0.5))
sketch6.addConstraint(Sketcher.Constraint("DistanceX", 1, 1, 1, 2, 17.0))
sketch6.addConstraint(Sketcher.Constraint("Radius", 5, 2.25))
sketch6.addConstraint(Sketcher.Constraint("DistanceX", 4, 1, 4, 2, 0.5))
sketch6.addConstraint(Sketcher.Constraint("DistanceY", 9, 2, 0, 2, 17.0))
pad4 = doc.addObject("PartDesign::Pad", "Pad003")
body3.addObject(pad4)
pad4.Profile = sketch6
pad4.Length = 1
pad4.Reversed = True

doc.recompute()
